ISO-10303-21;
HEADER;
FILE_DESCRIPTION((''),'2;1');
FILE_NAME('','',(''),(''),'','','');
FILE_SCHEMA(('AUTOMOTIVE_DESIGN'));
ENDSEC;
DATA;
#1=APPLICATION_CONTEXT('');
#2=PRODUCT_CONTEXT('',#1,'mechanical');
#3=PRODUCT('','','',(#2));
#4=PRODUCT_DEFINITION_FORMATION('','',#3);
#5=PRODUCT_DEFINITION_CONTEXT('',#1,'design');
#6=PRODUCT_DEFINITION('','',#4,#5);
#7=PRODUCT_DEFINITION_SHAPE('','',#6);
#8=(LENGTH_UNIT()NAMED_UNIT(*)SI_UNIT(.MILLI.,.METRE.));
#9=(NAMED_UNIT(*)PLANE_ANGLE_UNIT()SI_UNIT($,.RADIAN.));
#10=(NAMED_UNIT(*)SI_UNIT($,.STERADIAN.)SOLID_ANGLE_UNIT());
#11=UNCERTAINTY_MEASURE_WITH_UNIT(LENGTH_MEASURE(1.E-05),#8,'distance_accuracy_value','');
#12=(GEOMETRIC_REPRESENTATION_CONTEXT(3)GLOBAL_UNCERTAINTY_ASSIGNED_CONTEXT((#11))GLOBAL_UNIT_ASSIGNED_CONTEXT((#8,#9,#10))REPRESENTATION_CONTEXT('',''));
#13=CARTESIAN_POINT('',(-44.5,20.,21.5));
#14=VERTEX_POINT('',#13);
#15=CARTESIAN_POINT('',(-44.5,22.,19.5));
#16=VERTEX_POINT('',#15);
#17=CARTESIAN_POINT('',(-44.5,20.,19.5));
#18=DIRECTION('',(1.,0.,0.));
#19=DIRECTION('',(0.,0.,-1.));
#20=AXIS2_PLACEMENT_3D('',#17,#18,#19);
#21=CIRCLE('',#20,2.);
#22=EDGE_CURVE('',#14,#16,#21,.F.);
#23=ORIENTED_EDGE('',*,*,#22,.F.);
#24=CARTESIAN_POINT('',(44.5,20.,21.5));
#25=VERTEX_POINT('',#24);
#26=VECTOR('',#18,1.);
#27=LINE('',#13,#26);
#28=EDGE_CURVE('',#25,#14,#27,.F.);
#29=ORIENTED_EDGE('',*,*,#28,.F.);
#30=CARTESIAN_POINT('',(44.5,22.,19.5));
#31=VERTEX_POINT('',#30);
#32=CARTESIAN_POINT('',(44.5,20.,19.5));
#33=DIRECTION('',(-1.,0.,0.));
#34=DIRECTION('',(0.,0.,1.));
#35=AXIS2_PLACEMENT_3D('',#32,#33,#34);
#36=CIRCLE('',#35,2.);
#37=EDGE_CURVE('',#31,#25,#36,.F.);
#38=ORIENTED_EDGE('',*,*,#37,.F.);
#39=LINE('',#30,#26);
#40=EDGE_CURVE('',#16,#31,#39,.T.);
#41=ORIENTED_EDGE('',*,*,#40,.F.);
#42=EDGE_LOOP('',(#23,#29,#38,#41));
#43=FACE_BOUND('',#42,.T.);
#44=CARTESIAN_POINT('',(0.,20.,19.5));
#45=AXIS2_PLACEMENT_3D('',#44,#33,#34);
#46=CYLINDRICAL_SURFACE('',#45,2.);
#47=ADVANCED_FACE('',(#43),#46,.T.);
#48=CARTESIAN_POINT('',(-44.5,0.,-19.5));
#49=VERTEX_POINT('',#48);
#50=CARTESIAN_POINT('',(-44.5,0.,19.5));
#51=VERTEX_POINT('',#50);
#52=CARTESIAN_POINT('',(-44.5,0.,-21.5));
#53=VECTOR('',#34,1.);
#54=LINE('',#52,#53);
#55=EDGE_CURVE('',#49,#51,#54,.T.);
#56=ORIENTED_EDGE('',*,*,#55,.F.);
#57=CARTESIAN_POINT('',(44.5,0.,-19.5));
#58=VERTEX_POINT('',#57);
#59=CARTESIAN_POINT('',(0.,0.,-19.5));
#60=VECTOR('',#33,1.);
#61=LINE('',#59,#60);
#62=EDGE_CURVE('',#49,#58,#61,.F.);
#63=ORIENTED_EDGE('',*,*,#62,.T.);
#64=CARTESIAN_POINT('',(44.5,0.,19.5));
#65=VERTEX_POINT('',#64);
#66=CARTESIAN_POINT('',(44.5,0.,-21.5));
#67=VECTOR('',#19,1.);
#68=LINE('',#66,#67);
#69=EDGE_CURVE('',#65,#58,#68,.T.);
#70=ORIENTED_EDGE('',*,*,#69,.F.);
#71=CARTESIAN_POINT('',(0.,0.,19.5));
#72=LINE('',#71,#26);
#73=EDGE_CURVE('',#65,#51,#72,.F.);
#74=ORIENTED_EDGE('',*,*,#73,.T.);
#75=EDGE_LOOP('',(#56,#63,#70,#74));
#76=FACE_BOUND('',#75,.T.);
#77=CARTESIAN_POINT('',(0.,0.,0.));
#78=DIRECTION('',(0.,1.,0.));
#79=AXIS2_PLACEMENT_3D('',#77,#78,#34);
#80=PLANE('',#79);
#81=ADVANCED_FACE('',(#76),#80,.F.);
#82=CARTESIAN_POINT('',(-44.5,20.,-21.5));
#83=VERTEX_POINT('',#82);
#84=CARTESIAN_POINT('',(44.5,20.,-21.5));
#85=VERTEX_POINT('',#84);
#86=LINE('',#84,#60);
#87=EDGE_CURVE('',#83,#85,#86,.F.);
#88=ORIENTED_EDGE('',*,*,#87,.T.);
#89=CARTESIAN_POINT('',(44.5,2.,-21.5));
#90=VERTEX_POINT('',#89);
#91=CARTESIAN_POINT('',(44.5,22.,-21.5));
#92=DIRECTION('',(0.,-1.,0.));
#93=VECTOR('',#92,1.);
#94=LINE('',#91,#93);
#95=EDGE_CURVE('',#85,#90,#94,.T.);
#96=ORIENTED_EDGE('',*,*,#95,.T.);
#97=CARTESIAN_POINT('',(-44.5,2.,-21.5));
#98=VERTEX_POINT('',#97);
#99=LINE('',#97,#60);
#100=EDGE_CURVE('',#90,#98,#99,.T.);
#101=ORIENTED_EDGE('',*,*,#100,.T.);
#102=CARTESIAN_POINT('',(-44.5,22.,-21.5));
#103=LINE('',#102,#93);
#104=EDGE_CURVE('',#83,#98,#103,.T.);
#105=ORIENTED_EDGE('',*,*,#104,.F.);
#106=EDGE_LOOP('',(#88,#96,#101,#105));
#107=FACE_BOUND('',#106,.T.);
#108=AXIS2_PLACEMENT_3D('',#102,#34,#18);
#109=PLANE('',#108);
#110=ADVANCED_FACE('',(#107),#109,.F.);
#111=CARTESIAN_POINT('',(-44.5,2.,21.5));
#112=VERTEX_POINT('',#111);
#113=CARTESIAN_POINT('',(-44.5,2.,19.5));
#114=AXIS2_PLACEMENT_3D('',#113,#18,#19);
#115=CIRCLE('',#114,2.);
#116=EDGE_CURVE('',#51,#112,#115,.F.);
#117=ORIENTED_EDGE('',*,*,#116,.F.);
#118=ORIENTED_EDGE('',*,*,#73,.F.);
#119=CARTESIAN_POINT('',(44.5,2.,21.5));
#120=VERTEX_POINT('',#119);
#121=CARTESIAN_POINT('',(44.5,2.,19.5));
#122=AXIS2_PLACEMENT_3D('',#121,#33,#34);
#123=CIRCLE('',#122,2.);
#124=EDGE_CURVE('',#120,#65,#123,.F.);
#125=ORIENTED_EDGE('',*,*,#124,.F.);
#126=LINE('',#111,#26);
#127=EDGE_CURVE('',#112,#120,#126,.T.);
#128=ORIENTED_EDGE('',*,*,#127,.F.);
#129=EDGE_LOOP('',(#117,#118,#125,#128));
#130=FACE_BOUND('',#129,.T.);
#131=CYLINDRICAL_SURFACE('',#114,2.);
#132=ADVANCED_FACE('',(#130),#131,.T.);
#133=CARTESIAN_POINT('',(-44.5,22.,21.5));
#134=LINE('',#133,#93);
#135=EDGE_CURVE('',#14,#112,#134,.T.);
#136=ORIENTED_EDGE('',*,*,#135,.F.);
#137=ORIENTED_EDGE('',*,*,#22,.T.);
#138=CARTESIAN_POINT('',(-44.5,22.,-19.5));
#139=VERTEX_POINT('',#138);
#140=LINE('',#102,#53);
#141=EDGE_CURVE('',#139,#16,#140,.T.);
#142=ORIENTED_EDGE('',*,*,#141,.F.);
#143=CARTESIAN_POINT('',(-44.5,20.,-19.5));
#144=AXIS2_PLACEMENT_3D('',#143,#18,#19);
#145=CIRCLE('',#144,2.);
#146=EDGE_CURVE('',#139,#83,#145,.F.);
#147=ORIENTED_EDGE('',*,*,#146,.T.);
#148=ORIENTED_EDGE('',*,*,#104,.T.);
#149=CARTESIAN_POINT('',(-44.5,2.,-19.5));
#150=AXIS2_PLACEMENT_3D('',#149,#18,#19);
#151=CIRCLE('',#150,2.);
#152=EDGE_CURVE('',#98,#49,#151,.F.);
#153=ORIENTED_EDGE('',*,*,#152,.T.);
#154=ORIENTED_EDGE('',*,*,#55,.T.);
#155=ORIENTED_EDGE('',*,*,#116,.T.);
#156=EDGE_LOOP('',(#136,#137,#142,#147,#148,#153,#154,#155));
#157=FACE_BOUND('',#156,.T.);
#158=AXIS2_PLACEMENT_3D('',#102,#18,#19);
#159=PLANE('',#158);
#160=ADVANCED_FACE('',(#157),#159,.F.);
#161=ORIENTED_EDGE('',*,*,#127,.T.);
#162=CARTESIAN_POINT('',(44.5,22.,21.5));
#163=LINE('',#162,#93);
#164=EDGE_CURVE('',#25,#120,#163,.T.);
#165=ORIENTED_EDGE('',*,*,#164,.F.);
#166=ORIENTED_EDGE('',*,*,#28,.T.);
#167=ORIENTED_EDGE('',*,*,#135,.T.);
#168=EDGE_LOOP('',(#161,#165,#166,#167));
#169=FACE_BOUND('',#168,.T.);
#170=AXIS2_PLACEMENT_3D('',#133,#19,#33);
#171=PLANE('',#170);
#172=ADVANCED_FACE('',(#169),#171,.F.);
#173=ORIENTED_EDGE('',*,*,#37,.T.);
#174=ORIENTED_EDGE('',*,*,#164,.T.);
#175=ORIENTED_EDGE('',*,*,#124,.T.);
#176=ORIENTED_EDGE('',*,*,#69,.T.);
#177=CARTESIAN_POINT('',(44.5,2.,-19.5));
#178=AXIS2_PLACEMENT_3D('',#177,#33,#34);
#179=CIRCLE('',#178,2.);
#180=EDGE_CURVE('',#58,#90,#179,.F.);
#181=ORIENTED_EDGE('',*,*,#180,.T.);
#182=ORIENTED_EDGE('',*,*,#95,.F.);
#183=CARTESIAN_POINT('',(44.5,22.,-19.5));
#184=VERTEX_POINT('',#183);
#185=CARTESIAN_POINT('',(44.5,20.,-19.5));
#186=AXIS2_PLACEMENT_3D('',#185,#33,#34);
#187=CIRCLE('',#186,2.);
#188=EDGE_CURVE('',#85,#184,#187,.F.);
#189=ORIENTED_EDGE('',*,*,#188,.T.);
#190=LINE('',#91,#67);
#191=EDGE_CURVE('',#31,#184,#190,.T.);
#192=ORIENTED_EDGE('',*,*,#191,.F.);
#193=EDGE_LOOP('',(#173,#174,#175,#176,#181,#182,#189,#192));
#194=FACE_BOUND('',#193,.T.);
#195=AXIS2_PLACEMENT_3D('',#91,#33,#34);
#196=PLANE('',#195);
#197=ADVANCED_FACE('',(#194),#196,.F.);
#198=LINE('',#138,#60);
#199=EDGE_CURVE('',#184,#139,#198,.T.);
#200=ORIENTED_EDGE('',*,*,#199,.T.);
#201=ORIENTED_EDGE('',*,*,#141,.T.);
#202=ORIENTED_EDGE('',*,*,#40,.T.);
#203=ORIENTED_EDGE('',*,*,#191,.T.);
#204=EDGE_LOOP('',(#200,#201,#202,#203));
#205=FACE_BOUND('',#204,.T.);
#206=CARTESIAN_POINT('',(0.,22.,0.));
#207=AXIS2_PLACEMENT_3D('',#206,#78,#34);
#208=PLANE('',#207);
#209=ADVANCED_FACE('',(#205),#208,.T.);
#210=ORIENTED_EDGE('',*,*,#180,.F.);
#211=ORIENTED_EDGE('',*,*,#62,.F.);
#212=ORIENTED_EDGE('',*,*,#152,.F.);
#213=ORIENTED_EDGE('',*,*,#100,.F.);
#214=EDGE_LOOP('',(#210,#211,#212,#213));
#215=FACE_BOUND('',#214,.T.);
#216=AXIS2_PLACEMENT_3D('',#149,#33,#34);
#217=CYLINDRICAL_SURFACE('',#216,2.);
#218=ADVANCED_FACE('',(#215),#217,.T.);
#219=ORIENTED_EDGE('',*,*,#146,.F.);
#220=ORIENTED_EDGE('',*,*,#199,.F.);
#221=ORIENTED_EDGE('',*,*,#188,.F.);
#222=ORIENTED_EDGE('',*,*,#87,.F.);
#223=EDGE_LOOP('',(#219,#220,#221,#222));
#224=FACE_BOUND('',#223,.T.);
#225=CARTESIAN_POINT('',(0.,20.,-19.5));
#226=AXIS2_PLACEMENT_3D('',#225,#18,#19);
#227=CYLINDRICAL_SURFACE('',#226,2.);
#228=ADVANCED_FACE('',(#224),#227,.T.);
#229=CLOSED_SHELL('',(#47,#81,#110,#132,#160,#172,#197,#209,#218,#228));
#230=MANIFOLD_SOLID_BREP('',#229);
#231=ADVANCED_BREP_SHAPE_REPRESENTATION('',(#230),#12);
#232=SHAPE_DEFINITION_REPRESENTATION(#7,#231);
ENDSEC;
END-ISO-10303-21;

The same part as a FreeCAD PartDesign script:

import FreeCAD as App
import Part
import Sketcher

V = App.Vector


def edges_at(feature, points):
    """Names of the edges that pass closest to the given points."""
    edges = feature.Shape.Edges
    near = lambda p: min(range(len(edges)), key=lambda i: edges[i].distToShape(Part.Vertex(*p))[0])
    return sorted({f"Edge{near(p) + 1}" for p in points})

doc = App.newDocument("Part")
body = doc.addObject("PartDesign::Body", "Body")

# Sketch on XZ plane
sketch1 = body.newObject("Sketcher::SketchObject", "Sketch")
sketch1.AttachmentSupport = (doc.getObject("XZ_Plane"), [""])
sketch1.MapMode = "FlatFace"
sketch1.addGeometry(Part.LineSegment(V(-44, -22, 0), V(-44, 22, 0)), False)
sketch1.addGeometry(Part.LineSegment(V(-44, 22, 0), V(44, 22, 0)), False)
sketch1.addGeometry(Part.LineSegment(V(44, 22, 0), V(44, -22, 0)), False)
sketch1.addGeometry(Part.LineSegment(V(44, -22, 0), V(-44, -22, 0)), False)
sketch1.addConstraint(Sketcher.Constraint("Coincident", 0, 2, 1, 1))
sketch1.addConstraint(Sketcher.Constraint("Coincident", 1, 2, 2, 1))
sketch1.addConstraint(Sketcher.Constraint("Coincident", 2, 2, 3, 1))
sketch1.addConstraint(Sketcher.Constraint("Coincident", 3, 2, 0, 1))
sketch1.addConstraint(Sketcher.Constraint("Vertical", 0))
sketch1.addConstraint(Sketcher.Constraint("Horizontal", 1))
sketch1.addConstraint(Sketcher.Constraint("Vertical", 2))
sketch1.addConstraint(Sketcher.Constraint("Horizontal", 3))
sketch1.addConstraint(Sketcher.Constraint("Symmetric", 0, 2, 2, 2, -1, 1))
sketch1.addConstraint(Sketcher.Constraint("DistanceX", 1, 1, 1, 2, 89.0))
sketch1.addConstraint(Sketcher.Constraint("DistanceY", 0, 1, 0, 2, 43.0))
pad1 = body.newObject("PartDesign::Pad", "Pad")
pad1.Profile = sketch1
pad1.Length = 22
pad1.Reversed = True
doc.recompute()

fillet = body.newObject("PartDesign::Fillet", "Fillet")
fillet.Base = (pad1, edges_at(pad1, [
    (0, 22, -21.5),
    (0, 0, -21.5),
    (0, 0, 21.5),
    (0, 22, 21.5),
]))
fillet.Radius = 2

doc.recompute()
